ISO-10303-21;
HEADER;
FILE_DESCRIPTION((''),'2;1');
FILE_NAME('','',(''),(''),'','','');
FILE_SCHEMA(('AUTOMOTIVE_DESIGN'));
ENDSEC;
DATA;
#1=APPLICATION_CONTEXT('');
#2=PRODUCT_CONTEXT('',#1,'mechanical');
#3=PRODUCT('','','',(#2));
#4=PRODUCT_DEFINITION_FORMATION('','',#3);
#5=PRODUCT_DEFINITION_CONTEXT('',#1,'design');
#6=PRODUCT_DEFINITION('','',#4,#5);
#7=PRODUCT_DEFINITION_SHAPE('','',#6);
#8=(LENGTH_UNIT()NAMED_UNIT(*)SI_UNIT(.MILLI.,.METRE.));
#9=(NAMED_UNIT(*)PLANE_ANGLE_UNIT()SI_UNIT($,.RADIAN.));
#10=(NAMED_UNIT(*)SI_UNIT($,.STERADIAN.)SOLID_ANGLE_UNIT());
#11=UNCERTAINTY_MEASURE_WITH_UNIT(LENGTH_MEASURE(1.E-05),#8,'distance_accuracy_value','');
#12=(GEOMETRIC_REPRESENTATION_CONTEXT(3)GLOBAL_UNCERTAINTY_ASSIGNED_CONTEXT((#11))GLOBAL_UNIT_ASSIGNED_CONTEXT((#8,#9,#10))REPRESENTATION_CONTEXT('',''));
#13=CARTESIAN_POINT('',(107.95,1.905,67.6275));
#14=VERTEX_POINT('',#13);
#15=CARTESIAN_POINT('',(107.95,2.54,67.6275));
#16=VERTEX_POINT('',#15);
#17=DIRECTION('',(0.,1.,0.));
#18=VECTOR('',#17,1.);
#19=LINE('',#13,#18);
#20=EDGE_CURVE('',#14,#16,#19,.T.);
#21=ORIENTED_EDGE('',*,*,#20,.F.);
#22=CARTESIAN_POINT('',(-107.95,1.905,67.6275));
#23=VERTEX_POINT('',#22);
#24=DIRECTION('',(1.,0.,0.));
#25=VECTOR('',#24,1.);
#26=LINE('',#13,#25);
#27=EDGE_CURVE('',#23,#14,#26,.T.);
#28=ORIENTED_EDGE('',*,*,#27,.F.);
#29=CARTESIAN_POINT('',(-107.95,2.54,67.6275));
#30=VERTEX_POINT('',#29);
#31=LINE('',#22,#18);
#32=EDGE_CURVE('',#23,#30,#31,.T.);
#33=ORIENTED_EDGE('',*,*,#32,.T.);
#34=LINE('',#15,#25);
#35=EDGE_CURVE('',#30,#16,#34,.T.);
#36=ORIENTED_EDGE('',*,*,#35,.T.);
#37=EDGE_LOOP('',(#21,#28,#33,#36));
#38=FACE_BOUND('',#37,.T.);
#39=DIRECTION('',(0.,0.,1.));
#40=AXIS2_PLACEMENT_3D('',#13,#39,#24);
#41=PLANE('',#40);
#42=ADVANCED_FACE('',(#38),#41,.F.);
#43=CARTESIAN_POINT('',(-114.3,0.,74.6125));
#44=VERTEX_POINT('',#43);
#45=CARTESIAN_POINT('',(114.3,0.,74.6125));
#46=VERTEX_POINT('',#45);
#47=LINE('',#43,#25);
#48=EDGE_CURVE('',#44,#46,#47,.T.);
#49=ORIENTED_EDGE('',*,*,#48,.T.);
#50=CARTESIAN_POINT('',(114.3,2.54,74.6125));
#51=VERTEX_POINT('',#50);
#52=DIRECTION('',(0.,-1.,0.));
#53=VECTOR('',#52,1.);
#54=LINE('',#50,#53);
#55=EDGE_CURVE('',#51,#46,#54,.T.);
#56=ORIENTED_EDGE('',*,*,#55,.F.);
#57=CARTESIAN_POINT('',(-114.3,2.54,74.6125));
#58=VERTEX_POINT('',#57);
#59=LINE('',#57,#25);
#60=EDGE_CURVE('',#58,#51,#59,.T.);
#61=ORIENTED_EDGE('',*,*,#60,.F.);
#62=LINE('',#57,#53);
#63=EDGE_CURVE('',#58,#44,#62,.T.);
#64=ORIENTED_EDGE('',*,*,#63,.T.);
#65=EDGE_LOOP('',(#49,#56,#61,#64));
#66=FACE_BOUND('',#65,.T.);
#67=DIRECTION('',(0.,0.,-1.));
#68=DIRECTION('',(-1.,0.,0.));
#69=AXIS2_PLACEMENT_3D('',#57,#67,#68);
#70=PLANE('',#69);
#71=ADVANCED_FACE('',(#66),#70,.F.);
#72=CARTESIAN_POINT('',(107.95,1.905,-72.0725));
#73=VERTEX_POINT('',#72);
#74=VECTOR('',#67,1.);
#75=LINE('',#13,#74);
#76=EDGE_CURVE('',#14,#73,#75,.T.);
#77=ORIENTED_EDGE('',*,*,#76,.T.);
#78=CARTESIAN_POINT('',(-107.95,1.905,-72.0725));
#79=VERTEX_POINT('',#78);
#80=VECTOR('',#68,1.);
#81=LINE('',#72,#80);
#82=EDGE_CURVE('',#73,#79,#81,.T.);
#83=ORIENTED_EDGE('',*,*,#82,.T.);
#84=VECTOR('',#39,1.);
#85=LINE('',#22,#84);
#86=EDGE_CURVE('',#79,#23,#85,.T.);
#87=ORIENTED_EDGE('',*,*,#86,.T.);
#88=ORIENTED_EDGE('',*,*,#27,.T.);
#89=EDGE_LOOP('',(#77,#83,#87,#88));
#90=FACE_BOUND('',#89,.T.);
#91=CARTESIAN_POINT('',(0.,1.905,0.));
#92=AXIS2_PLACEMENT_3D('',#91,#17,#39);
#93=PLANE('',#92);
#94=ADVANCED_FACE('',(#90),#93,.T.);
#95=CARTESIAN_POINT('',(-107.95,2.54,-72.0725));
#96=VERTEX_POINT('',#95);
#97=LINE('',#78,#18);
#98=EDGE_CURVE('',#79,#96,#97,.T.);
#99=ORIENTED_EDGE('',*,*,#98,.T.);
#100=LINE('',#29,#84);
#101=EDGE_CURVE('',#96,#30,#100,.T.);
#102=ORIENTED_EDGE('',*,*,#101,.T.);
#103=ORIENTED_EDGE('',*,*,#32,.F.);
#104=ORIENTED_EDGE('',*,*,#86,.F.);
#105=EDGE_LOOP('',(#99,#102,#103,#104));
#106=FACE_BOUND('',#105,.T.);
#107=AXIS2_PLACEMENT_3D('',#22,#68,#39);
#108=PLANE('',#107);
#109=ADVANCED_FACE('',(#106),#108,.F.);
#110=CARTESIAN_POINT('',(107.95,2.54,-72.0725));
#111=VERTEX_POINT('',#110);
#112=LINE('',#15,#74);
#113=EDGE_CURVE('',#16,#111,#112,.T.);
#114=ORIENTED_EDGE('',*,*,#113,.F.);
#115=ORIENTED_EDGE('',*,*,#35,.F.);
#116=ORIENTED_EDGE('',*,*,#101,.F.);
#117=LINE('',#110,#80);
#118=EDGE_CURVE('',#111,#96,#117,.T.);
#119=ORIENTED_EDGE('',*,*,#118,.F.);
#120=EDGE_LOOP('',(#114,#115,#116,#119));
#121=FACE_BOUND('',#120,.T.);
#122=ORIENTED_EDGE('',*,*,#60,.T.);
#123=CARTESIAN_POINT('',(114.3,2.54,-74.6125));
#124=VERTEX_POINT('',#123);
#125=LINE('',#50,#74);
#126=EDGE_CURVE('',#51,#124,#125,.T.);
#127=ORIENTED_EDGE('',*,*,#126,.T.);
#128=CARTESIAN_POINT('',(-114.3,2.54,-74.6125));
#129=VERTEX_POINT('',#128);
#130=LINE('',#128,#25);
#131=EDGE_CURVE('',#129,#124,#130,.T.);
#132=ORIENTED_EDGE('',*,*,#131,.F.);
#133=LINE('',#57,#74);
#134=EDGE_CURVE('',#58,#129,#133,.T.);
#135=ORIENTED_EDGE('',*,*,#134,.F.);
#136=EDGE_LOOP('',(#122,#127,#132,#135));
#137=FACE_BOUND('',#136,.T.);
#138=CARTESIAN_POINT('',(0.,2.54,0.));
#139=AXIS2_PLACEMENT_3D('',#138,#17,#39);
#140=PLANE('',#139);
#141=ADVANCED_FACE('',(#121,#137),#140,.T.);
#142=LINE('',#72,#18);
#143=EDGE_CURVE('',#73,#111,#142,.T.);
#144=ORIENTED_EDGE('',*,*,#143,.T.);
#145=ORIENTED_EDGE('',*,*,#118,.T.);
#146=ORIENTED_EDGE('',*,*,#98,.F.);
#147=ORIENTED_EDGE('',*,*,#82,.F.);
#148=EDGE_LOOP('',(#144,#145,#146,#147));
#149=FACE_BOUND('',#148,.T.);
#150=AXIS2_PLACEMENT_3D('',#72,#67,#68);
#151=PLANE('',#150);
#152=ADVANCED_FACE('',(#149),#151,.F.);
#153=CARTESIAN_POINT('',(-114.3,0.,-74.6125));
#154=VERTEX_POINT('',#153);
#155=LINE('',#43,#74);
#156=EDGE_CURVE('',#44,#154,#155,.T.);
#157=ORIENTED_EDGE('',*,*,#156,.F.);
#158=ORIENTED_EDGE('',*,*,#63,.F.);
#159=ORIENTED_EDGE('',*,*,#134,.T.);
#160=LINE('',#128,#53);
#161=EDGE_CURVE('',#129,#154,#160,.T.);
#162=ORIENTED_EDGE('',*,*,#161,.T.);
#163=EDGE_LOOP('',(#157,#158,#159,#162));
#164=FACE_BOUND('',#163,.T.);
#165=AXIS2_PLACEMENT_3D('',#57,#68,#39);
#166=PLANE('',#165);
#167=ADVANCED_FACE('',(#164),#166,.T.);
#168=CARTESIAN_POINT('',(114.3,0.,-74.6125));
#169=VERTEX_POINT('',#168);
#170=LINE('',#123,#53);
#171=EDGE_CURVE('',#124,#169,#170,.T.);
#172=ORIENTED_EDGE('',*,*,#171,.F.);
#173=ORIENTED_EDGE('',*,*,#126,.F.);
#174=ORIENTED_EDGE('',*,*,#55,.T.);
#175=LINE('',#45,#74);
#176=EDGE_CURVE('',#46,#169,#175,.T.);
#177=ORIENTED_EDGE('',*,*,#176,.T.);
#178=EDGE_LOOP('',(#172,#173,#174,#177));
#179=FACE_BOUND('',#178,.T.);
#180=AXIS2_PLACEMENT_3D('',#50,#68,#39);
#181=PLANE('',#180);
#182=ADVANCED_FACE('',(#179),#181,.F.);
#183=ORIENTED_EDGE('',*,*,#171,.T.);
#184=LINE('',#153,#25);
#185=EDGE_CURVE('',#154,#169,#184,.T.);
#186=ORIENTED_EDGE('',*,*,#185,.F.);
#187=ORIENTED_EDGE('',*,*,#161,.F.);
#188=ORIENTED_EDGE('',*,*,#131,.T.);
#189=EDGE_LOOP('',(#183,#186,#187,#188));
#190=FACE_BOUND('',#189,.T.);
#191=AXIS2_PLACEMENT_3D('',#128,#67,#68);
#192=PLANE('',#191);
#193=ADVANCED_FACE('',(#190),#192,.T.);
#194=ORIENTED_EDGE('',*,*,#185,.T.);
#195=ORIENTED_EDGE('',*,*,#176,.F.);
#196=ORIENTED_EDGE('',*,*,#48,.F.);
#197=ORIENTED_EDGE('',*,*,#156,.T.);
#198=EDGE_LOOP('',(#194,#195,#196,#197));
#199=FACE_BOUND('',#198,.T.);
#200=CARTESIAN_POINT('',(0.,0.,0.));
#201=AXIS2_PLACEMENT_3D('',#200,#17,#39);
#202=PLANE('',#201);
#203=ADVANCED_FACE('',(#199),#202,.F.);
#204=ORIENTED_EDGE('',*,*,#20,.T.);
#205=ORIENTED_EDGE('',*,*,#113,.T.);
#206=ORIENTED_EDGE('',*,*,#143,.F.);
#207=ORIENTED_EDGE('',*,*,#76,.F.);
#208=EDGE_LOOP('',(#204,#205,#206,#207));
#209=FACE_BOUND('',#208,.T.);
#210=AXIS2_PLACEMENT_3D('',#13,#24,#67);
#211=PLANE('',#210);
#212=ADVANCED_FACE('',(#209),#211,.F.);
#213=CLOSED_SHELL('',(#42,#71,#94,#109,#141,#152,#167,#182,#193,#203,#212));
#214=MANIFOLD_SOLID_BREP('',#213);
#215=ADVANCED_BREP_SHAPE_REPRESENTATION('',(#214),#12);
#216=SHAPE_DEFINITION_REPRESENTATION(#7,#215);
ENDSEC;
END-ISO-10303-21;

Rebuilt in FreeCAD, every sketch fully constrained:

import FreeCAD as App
import Part
import Sketcher
Q = App.Units.Quantity

doc = App.newDocument("Part")
body = doc.addObject("PartDesign::Body", "Body")

# Sketch on XZ plane
sketch1 = body.newObject("Sketcher::SketchObject", "Sketch")
sketch1.AttachmentSupport = (doc.getObject("XZ_Plane"), [""])
sketch1.MapMode = "FlatFace"
sketch1.addGeometry(Part.LineSegment(App.Vector(-114, -75, 0), App.Vector(-114, 75, 0)), False)
sketch1.addGeometry(Part.LineSegment(App.Vector(-114, 75, 0), App.Vector(114, 75, 0)), False)
sketch1.addGeometry(Part.LineSegment(App.Vector(114, 75, 0), App.Vector(114, -75, 0)), False)
sketch1.addGeometry(Part.LineSegment(App.Vector(114, -75, 0), App.Vector(-114, -75, 0)), False)
sketch1.addConstraint(Sketcher.Constraint("Coincident", 0, 2, 1, 1))
sketch1.addConstraint(Sketcher.Constraint("Coincident", 1, 2, 2, 1))
sketch1.addConstraint(Sketcher.Constraint("Coincident", 2, 2, 3, 1))
sketch1.addConstraint(Sketcher.Constraint("Coincident", 3, 2, 0, 1))
sketch1.addConstraint(Sketcher.Constraint("Vertical", 0))
sketch1.addConstraint(Sketcher.Constraint("Horizontal", 1))
sketch1.addConstraint(Sketcher.Constraint("Vertical", 2))
sketch1.addConstraint(Sketcher.Constraint("Horizontal", 3))
sketch1.addConstraint(Sketcher.Constraint("Symmetric", 0, 2, 2, 2, -1, 1))
sketch1.addConstraint(Sketcher.Constraint("DistanceX", 1, 1, 1, 2, Q("9 in")))
sketch1.addConstraint(Sketcher.Constraint("DistanceY", 0, 1, 0, 2, Q("5.875 in")))
pad1 = body.newObject("PartDesign::Pad", "Pad")
pad1.Profile = sketch1
pad1.Length = Q("0.1 in")
pad1.Reversed = True

# Sketch on XZ plane
sketch2 = body.newObject("Sketcher::SketchObject", "Sketch001")
sketch2.AttachmentSupport = (doc.getObject("XZ_Plane"), [""])
sketch2.MapMode = "FlatFace"
sketch2.AttachmentOffset = App.Placement(App.Vector(0, 0, -0.1 * 25.4), App.Rotation())
sketch2.addGeometry(Part.LineSegment(App.Vector(-108, -72, 0), App.Vector(-108, 68, 0)), False)
sketch2.addGeometry(Part.LineSegment(App.Vector(-108, 68, 0), App.Vector(108, 68, 0)), False)
sketch2.addGeometry(Part.LineSegment(App.Vector(108, 68, 0), App.Vector(108, -72, 0)), False)
sketch2.addGeometry(Part.LineSegment(App.Vector(108, -72, 0), App.Vector(-108, -72, 0)), False)
sketch2.addConstraint(Sketcher.Constraint("Coincident", 0, 2, 1, 1))
sketch2.addConstraint(Sketcher.Constraint("Coincident", 1, 2, 2, 1))
sketch2.addConstraint(Sketcher.Constraint("Coincident", 2, 2, 3, 1))
sketch2.addConstraint(Sketcher.Constraint("Coincident", 3, 2, 0, 1))
sketch2.addConstraint(Sketcher.Constraint("Vertical", 0))
sketch2.addConstraint(Sketcher.Constraint("Horizontal", 1))
sketch2.addConstraint(Sketcher.Constraint("Vertical", 2))
sketch2.addConstraint(Sketcher.Constraint("Horizontal", 3))
sketch2.addConstraint(Sketcher.Constraint("DistanceX", 1, 1, 1, 2, Q("8.5 in")))
sketch2.addConstraint(Sketcher.Constraint("DistanceY", 0, 1, 0, 2, Q("5.5 in")))
sketch2.addConstraint(Sketcher.Constraint("DistanceX", 0, 2, -1, 1, Q("4.25 in")))
sketch2.addConstraint(Sketcher.Constraint("DistanceY", -1, 1, 0, 2, Q("2.6625 in")))
pocket1 = body.newObject("PartDesign::Pocket", "Pocket")
pocket1.Profile = sketch2
pocket1.Length = Q("0.025 in")
pocket1.Reversed = True

doc.recompute()
